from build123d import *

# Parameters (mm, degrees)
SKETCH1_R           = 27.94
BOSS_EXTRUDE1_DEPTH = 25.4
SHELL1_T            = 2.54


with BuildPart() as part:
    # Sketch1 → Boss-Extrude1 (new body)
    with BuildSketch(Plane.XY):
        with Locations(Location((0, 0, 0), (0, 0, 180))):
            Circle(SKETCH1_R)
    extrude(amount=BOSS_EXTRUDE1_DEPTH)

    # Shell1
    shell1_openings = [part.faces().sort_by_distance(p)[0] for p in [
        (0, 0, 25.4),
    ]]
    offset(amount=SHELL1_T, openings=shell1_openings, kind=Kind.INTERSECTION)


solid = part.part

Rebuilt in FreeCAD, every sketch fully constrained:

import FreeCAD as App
import Part
import Sketcher

V = App.Vector
Q = App.Units.Quantity


def faces_at(feature, points):
    """Names of the faces that lie closest to the given points."""
    faces = feature.Shape.Faces
    near = lambda p: min(range(len(faces)), key=lambda i: faces[i].distToShape(Part.Vertex(*p))[0])
    return sorted({f"Face{near(p) + 1}" for p in points})

doc = App.newDocument("Part")
body = doc.addObject("PartDesign::Body", "Body")

# Sketch on XY plane
sketch1 = body.newObject("Sketcher::SketchObject", "Sketch")
sketch1.AttachmentSupport = (doc.getObject("XY_Plane"), [""])
sketch1.MapMode = "FlatFace"
sketch1.addGeometry(Part.Circle(V(0, 0, 0), V(0, 0, 1), 27.94), False)
sketch1.addConstraint([
    Sketcher.Constraint("Coincident", 0, 3, -1, 1),
    Sketcher.Constraint("Diameter", 0, Q("2.2 in")),
])
pad1 = body.newObject("PartDesign::Pad", "Pad")
pad1.Profile = sketch1
pad1.Length = Q("1 in")
doc.recompute()

thickness = body.newObject("PartDesign::Thickness", "Thickness")
thickness.Base = (pad1, faces_at(pad1, [(0, 0, 25.4)]))
thickness.Value = Q("0.1 in")
thickness.Reversed = False
thickness.Join = "Intersection"

doc.recompute()
